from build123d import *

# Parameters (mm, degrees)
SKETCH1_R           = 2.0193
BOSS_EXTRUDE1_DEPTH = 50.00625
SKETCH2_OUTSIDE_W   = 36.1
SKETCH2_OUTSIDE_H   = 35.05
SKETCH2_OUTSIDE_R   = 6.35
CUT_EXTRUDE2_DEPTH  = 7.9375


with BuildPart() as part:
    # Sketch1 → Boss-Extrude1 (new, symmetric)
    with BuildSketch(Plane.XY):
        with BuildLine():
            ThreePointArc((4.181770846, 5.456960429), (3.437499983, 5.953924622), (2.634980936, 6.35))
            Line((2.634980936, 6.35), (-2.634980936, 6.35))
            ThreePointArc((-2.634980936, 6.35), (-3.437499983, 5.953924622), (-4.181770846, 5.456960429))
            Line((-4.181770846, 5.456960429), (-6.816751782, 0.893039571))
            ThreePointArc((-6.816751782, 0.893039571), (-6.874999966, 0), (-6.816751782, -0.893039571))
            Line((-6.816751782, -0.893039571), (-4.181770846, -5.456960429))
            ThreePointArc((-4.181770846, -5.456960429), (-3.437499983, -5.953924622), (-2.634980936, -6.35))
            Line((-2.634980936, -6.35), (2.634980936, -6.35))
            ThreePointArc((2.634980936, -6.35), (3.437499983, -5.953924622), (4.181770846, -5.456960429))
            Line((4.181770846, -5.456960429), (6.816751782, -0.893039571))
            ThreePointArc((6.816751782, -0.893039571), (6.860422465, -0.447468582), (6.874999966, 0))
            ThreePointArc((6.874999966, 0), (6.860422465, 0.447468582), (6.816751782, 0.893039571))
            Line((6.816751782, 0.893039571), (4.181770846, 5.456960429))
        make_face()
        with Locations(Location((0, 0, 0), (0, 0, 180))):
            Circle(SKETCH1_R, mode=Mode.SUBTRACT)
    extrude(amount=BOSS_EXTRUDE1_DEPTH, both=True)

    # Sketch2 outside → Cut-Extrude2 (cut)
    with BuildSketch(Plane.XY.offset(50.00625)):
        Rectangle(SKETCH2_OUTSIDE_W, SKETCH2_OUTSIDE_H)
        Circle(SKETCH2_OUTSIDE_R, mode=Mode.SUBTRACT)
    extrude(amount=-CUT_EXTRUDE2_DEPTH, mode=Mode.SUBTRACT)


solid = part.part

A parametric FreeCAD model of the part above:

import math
import FreeCAD as App
import Part
import Sketcher
from FreeCAD import Vector
Q = App.Units.Quantity


def add_polygon(sketch, points):
    """Adds a closed chain of lines whose ends are joined by coincident constraints."""
    first, n = sketch.GeometryCount, len(points)
    for a, b in zip(points, points[1:] + points[:1]):
        sketch.addGeometry(Part.LineSegment(App.Vector(*a, 0), App.Vector(*b, 0)), False)
    for i in range(n):
        sketch.addConstraint(Sketcher.Constraint("Coincident", first + i, 2, first + (i + 1) % n, 1))

doc = App.newDocument("Part")
body = doc.addObject("PartDesign::Body", "Body")

sketch1 = doc.addObject("Sketcher::SketchObject", "Sketch")
body.addObject(sketch1)
sketch1.AttachmentSupport = (doc.XY_Plane, [""])
sketch1.MapMode = "FlatFace"
sketch1.addGeometry([
    Part.ArcOfCircle(Part.Circle(Vector(0, 0, 0), Vector(0, 0, 1), 6.9), math.radians(52.54), math.radians(67.46)),
    Part.LineSegment(Vector(2.6, 6.3, 0), Vector(-2.6, 6.3, 0)),
    Part.ArcOfCircle(Part.Circle(Vector(0, 0, 0), Vector(0, 0, 1), 6.9), math.radians(112.54), math.radians(127.46)),
    Part.LineSegment(Vector(-4.2, 5.5, 0), Vector(-6.8, 0.9, 0)),
    Part.ArcOfCircle(Part.Circle(Vector(0, 0, 0), Vector(0, 0, 1), 6.9), math.radians(172.54), math.radians(187.46)),
    Part.LineSegment(Vector(-6.8, -0.9, 0), Vector(-4.2, -5.5, 0)),
    Part.ArcOfCircle(Part.Circle(Vector(0, 0, 0), Vector(0, 0, 1), 6.9), math.radians(-127.46), math.radians(-112.54)),
    Part.LineSegment(Vector(-2.6, -6.3, 0), Vector(2.6, -6.3, 0)),
    Part.ArcOfCircle(Part.Circle(Vector(0, 0, 0), Vector(0, 0, 1), 6.9), math.radians(-67.46), math.radians(-52.54)),
    Part.LineSegment(Vector(4.2, -5.5, 0), Vector(6.8, -0.9, 0)),
    Part.ArcOfCircle(Part.Circle(Vector(0, 0, 0), Vector(0, 0, 1), 6.9), math.radians(-7.46), math.radians(0)),
    Part.ArcOfCircle(Part.Circle(Vector(0, 0, 0), Vector(0, 0, 1), 6.9), math.radians(0), math.radians(7.46)),
    Part.LineSegment(Vector(6.8, 0.9, 0), Vector(4.2, 5.5, 0)),
    Part.Circle(Vector(0, 0, 0), Vector(0, 0, 1), 2),
], False)
sketch1.addConstraint([
    Sketcher.Constraint("Coincident", 0, 2, 1, 1),
    Sketcher.Constraint("Coincident", 1, 2, 2, 1),
    Sketcher.Constraint("Coincident", 2, 2, 3, 1),
    Sketcher.Constraint("Coincident", 3, 2, 4, 1),
    Sketcher.Constraint("Coincident", 4, 2, 5, 1),
    Sketcher.Constraint("Coincident", 5, 2, 6, 1),
    Sketcher.Constraint("Coincident", 6, 2, 7, 1),
    Sketcher.Constraint("Coincident", 7, 2, 8, 1),
    Sketcher.Constraint("Coincident", 8, 2, 9, 1),
    Sketcher.Constraint("Coincident", 9, 2, 10, 1),
    Sketcher.Constraint("Tangent", 10, 2, 11, 1),
    Sketcher.Constraint("Coincident", 11, 2, 12, 1),
    Sketcher.Constraint("Coincident", 12, 2, 0, 1),
    Sketcher.Constraint("Horizontal", 1),
    Sketcher.Constraint("Horizontal", 7),
    Sketcher.Constraint("Coincident", 0, 3, -1, 1),
    Sketcher.Constraint("Coincident", 2, 3, -1, 1),
    Sketcher.Constraint("Coincident", 4, 3, -1, 1),
    Sketcher.Constraint("Coincident", 6, 3, -1, 1),
    Sketcher.Constraint("Coincident", 8, 3, -1, 1),
    Sketcher.Constraint("Coincident", 10, 3, -1, 1),
    Sketcher.Constraint("Coincident", 13, 3, -1, 1),
    Sketcher.Constraint("Equal", 0, 2),
    Sketcher.Constraint("Equal", 2, 4),
    Sketcher.Constraint("Equal", 4, 6),
    Sketcher.Constraint("Equal", 6, 8),
    Sketcher.Constraint("Equal", 8, 10),
    Sketcher.Constraint("Equal", 10, 11),
    Sketcher.Constraint("PointOnObject", 10, 2, -1),
    Sketcher.Constraint("Parallel", 3, 9),
    Sketcher.Constraint("Parallel", 5, 12),
    Sketcher.Constraint("Horizontal", 5, 2, 8, 2),
    Sketcher.Constraint("Horizontal", 4, 2, 9, 2),
    Sketcher.Constraint("Horizontal", 3, 2, 11, 2),
    Sketcher.Constraint("Vertical", 3, 2, 4, 2),
    Sketcher.Constraint("Vertical", 1, 2, 6, 2),
    Sketcher.Constraint("Diameter", 13, Q("0.159 in")),
    Sketcher.Constraint("Angle", 3, Q("-120 deg")),
    Sketcher.Constraint("DistanceY", -1, 1, 0, 2, Q("0.25 in")),
    Sketcher.Constraint("Radius", 0, 6.875),
    Sketcher.Constraint("Distance", 3, 5.269962),
])
pad1 = doc.addObject("PartDesign::Pad", "Pad")
body.addObject(pad1)
pad1.Profile = sketch1
pad1.Length = Q("3.9375 in")
pad1.Midplane = True

sketch2 = doc.addObject("Sketcher::SketchObject", "Sketch001")
body.addObject(sketch2)
sketch2.AttachmentSupport = (doc.XY_Plane, [""])
sketch2.MapMode = "FlatFace"
sketch2.AttachmentOffset = App.Placement(Vector(0, 0, 1.96875 * 25.4), App.Rotation())
add_polygon(sketch2, [(-18, 18), (-18, -18), (18, -18), (18, 18)])
sketch2.addGeometry(Part.Circle(Vector(0, 0, 0), Vector(0, 0, 1), 6), False)
sketch2.addConstraint([
    Sketcher.Constraint("Vertical", 0),
    Sketcher.Constraint("Horizontal", 1),
    Sketcher.Constraint("Vertical", 2),
    Sketcher.Constraint("Horizontal", 3),
    Sketcher.Constraint("Coincident", 4, 3, -1, 1),
    Sketcher.Constraint("Symmetric", 0, 2, 2, 2, -1, 1),
    Sketcher.Constraint("Diameter", 4, Q("0.5 in")),
    Sketcher.Constraint("DistanceX", 1, 1, 1, 2, 36.1),
    Sketcher.Constraint("DistanceY", 0, 2, 0, 1, 35.05),
])
pocket1 = doc.addObject("PartDesign::Pocket", "Pocket")
body.addObject(pocket1)
pocket1.Profile = sketch2
pocket1.Length = Q("0.3125 in")

doc.recompute()
